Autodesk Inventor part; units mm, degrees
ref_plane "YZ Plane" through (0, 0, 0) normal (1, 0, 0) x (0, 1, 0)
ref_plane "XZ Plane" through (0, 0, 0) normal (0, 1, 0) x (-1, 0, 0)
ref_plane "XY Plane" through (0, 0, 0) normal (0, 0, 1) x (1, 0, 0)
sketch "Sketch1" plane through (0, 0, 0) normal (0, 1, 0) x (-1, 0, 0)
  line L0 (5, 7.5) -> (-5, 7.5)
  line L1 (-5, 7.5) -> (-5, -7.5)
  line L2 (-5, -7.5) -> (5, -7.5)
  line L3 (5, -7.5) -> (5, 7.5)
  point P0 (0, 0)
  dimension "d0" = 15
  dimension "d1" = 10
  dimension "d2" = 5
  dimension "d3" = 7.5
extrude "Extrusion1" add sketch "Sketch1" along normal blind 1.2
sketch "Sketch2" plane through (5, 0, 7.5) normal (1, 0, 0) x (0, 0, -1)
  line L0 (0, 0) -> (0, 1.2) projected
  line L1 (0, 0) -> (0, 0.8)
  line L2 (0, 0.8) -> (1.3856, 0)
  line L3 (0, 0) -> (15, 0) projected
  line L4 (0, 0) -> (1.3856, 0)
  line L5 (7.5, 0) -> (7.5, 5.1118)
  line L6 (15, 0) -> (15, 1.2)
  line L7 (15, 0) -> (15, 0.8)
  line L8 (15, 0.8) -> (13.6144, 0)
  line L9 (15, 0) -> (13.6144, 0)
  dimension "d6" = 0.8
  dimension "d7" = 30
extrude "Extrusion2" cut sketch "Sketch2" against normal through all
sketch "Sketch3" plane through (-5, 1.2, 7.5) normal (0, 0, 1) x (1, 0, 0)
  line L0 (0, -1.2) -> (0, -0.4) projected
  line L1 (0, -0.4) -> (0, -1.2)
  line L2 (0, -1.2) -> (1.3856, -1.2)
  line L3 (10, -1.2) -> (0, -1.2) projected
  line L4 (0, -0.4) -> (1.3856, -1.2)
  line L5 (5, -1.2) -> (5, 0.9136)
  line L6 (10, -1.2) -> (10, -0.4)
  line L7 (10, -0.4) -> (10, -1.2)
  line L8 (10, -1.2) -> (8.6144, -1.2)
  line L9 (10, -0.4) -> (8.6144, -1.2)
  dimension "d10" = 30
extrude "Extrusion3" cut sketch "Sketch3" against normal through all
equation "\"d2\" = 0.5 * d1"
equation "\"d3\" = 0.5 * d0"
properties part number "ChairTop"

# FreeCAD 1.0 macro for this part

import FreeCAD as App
import Part
import Sketcher
from FreeCAD import Vector
Q = App.Units.Quantity

doc = App.newDocument("Part")
params = doc.addObject("Spreadsheet::Sheet", "Params")
for row, (alias, value) in enumerate([
    ("sketch1_width", "10 mm"),
    ("sketch1_height", "15 mm"),
    ("pad1_length", "1.2 mm"),
    ("sketch2_width", "0.8 mm"),
    ("sketch3_height", "0.8 mm"),
], start=1):
    params.set(f"A{row}", alias)
    params.set(f"B{row}", "=" + value)
    params.setAlias(f"B{row}", alias)

body = doc.addObject("PartDesign::Body", "Body")

sketch1 = doc.addObject("Sketcher::SketchObject", "Sketch")
body.addObject(sketch1)
sketch1.AttachmentSupport = (doc.XZ_Plane, [""])
sketch1.MapMode = "FlatFace"
sketch1.addGeometry([
    Part.LineSegment(Vector(-5, -8, 0), Vector(-5, 8, 0)),
    Part.LineSegment(Vector(-5, 8, 0), Vector(5, 8, 0)),
    Part.LineSegment(Vector(5, 8, 0), Vector(5, -8, 0)),
    Part.LineSegment(Vector(5, -8, 0), Vector(-5, -8, 0)),
], False)
sketch1.addConstraint([
    Sketcher.Constraint("Coincident", 0, 2, 1, 1),
    Sketcher.Constraint("Coincident", 1, 2, 2, 1),
    Sketcher.Constraint("Coincident", 2, 2, 3, 1),
    Sketcher.Constraint("Coincident", 3, 2, 0, 1),
    Sketcher.Constraint("Vertical", 0),
    Sketcher.Constraint("Horizontal", 1),
    Sketcher.Constraint("Vertical", 2),
    Sketcher.Constraint("Horizontal", 3),
    Sketcher.Constraint("Symmetric", 0, 2, 2, 2, -1, 1),
    Sketcher.Constraint("DistanceX", 1, 1, 1, 2, Q("10 mm")),
    Sketcher.Constraint("DistanceY", 0, 1, 0, 2, Q("15 mm")),
])
sketch1.setExpression("Constraints[9]", "Params.sketch1_width")
sketch1.setExpression("Constraints[10]", "Params.sketch1_height")
pad1 = doc.addObject("PartDesign::Pad", "Pad")
body.addObject(pad1)
pad1.Profile = sketch1
pad1.setExpression("Length", "Params.pad1_length")
pad1.Reversed = True

sketch2 = doc.addObject("Sketcher::SketchObject", "Sketch001")
body.addObject(sketch2)
sketch2.AttachmentSupport = (doc.YZ_Plane, [""])
sketch2.MapMode = "FlatFace"
sketch2.AttachmentOffset = App.Placement(Vector(0, 0, 5), App.Rotation())
sketch2.addGeometry([
    Part.LineSegment(Vector(0.8, -7.5, 0), Vector(0, -6.1, 0)),
    Part.LineSegment(Vector(0, -6.1, 0), Vector(0, -7.5, 0)),
    Part.LineSegment(Vector(0, -7.5, 0), Vector(0.8, -7.5, 0)),
    Part.LineSegment(Vector(0.8, 7.5, 0), Vector(0, 7.5, 0)),
    Part.LineSegment(Vector(0, 7.5, 0), Vector(0, 6.1, 0)),
    Part.LineSegment(Vector(0, 6.1, 0), Vector(0.8, 7.5, 0)),
], False)
sketch2.addConstraint([
    Sketcher.Constraint("Coincident", 0, 2, 1, 1),
    Sketcher.Constraint("Coincident", 1, 2, 2, 1),
    Sketcher.Constraint("Coincident", 2, 2, 0, 1),
    Sketcher.Constraint("Coincident", 3, 2, 4, 1),
    Sketcher.Constraint("Coincident", 4, 2, 5, 1),
    Sketcher.Constraint("Coincident", 5, 2, 3, 1),
    Sketcher.Constraint("Vertical", 1),
    Sketcher.Constraint("Horizontal", 2),
    Sketcher.Constraint("Horizontal", 3),
    Sketcher.Constraint("Vertical", 4),
    Sketcher.Constraint("Symmetric", 1, 2, 3, 2, -1, 1),
    Sketcher.Constraint("Symmetric", 0, 2, 4, 2, -1),
    Sketcher.Constraint("Vertical", 2, 2, 5, 2),
    Sketcher.Constraint("DistanceX", 2, 1, 2, 2, Q("0.8 mm")),
    Sketcher.Constraint("Angle", 0, Q("120.0007 deg")),
    Sketcher.Constraint("DistanceY", 1, 2, 3, 2, Q("15 mm")),
])
sketch2.setExpression("Constraints[13]", "Params.sketch2_width")
pocket1 = doc.addObject("PartDesign::Pocket", "Pocket")
body.addObject(pocket1)
pocket1.Profile = sketch2
pocket1.Type = "ThroughAll"

sketch3 = doc.addObject("Sketcher::SketchObject", "Sketch002")
body.addObject(sketch3)
sketch3.AttachmentSupport = (doc.XY_Plane, [""])
sketch3.MapMode = "FlatFace"
sketch3.AttachmentOffset = App.Placement(Vector(0, 0, 7.5), App.Rotation())
sketch3.addGeometry([
    Part.LineSegment(Vector(5, 0.8, 0), Vector(3.6, 0, 0)),
    Part.LineSegment(Vector(3.6, 0, 0), Vector(5, 0, 0)),
    Part.LineSegment(Vector(5, 0, 0), Vector(5, 0.8, 0)),
    Part.LineSegment(Vector(-5, 0.8, 0), Vector(-5, 0, 0)),
    Part.LineSegment(Vector(-5, 0, 0), Vector(-3.6, 0, 0)),
    Part.LineSegment(Vector(-3.6, 0, 0), Vector(-5, 0.8, 0)),
], False)
sketch3.addConstraint([
    Sketcher.Constraint("Coincident", 0, 2, 1, 1),
    Sketcher.Constraint("Coincident", 1, 2, 2, 1),
    Sketcher.Constraint("Coincident", 2, 2, 0, 1),
    Sketcher.Constraint("Coincident", 3, 2, 4, 1),
    Sketcher.Constraint("Coincident", 4, 2, 5, 1),
    Sketcher.Constraint("Coincident", 5, 2, 3, 1),
    Sketcher.Constraint("Horizontal", 1),
    Sketcher.Constraint("Vertical", 2),
    Sketcher.Constraint("Vertical", 3),
    Sketcher.Constraint("Horizontal", 4),
    Sketcher.Constraint("Symmetric", 1, 2, 3, 2, -1, 1),
    Sketcher.Constraint("Symmetric", 0, 2, 4, 2, -2),
    Sketcher.Constraint("Horizontal", 2, 2, 5, 2),
    Sketcher.Constraint("Angle", 0, Q("-149.9993 deg")),
    Sketcher.Constraint("DistanceY", 2, 1, 2, 2, Q("0.8 mm")),
    Sketcher.Constraint("DistanceX", -1, 1, 1, 2, Q("5 mm")),
])
sketch3.setExpression("Constraints[14]", "Params.sketch3_height")
pocket2 = doc.addObject("PartDesign::Pocket", "Pocket001")
body.addObject(pocket2)
pocket2.Profile = sketch3
pocket2.Type = "ThroughAll"

doc.recompute()
